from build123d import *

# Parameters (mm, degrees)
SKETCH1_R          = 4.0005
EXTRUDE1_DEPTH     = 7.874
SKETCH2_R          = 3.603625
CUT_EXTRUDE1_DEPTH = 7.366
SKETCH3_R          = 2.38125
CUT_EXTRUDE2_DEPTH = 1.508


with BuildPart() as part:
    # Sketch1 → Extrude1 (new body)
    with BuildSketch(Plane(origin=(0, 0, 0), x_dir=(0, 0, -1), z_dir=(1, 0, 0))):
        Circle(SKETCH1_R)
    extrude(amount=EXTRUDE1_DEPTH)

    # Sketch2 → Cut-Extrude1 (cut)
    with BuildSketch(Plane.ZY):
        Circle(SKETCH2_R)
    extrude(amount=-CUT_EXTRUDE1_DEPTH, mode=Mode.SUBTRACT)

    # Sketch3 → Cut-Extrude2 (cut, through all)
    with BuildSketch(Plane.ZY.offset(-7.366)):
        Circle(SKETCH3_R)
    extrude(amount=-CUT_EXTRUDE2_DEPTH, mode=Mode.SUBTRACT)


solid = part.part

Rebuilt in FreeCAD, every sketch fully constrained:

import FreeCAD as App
import Part
import Sketcher
Q = App.Units.Quantity

doc = App.newDocument("Part")
body = doc.addObject("PartDesign::Body", "Body")

sketch1 = doc.addObject("Sketcher::SketchObject", "Sketch")
body.addObject(sketch1)
sketch1.AttachmentSupport = (doc.YZ_Plane, [""])
sketch1.MapMode = "FlatFace"
sketch1.addGeometry(Part.Circle(App.Vector(0, 0, 0), App.Vector(0, 0, 1), 4), False)
sketch1.addConstraint([
    Sketcher.Constraint("Coincident", 0, 3, -1, 1),
    Sketcher.Constraint("Diameter", 0, Q("0.315 in")),
])
pad1 = doc.addObject("PartDesign::Pad", "Pad")
body.addObject(pad1)
pad1.Profile = sketch1
pad1.Length = Q("0.31 in")

sketch2 = doc.addObject("Sketcher::SketchObject", "Sketch001")
body.addObject(sketch2)
sketch2.AttachmentSupport = (doc.YZ_Plane, [""])
sketch2.MapMode = "FlatFace"
sketch2.addGeometry(Part.Circle(App.Vector(0, 0, 0), App.Vector(0, 0, 1), 3.6), False)
sketch2.addConstraint([
    Sketcher.Constraint("Coincident", 0, 3, -1, 1),
    Sketcher.Constraint("Diameter", 0, Q("7.20725 mm")),
])
pocket1 = doc.addObject("PartDesign::Pocket", "Pocket")
body.addObject(pocket1)
pocket1.Profile = sketch2
pocket1.Length = Q("0.29 in")
pocket1.Reversed = True

sketch3 = doc.addObject("Sketcher::SketchObject", "Sketch002")
body.addObject(sketch3)
sketch3.AttachmentSupport = (doc.YZ_Plane, [""])
sketch3.MapMode = "FlatFace"
sketch3.AttachmentOffset = App.Placement(App.Vector(0, 0, 0.29 * 25.4), App.Rotation())
sketch3.addGeometry(Part.Circle(App.Vector(0, 0, 0), App.Vector(0, 0, 1), 2.4), False)
sketch3.addConstraint([
    Sketcher.Constraint("Coincident", 0, 3, -1, 1),
    Sketcher.Constraint("Diameter", 0, Q("0.1875 in")),
])
pocket2 = doc.addObject("PartDesign::Pocket", "Pocket001")
body.addObject(pocket2)
pocket2.Profile = sketch3
pocket2.Type = "ThroughAll"
pocket2.Reversed = True

doc.recompute()
